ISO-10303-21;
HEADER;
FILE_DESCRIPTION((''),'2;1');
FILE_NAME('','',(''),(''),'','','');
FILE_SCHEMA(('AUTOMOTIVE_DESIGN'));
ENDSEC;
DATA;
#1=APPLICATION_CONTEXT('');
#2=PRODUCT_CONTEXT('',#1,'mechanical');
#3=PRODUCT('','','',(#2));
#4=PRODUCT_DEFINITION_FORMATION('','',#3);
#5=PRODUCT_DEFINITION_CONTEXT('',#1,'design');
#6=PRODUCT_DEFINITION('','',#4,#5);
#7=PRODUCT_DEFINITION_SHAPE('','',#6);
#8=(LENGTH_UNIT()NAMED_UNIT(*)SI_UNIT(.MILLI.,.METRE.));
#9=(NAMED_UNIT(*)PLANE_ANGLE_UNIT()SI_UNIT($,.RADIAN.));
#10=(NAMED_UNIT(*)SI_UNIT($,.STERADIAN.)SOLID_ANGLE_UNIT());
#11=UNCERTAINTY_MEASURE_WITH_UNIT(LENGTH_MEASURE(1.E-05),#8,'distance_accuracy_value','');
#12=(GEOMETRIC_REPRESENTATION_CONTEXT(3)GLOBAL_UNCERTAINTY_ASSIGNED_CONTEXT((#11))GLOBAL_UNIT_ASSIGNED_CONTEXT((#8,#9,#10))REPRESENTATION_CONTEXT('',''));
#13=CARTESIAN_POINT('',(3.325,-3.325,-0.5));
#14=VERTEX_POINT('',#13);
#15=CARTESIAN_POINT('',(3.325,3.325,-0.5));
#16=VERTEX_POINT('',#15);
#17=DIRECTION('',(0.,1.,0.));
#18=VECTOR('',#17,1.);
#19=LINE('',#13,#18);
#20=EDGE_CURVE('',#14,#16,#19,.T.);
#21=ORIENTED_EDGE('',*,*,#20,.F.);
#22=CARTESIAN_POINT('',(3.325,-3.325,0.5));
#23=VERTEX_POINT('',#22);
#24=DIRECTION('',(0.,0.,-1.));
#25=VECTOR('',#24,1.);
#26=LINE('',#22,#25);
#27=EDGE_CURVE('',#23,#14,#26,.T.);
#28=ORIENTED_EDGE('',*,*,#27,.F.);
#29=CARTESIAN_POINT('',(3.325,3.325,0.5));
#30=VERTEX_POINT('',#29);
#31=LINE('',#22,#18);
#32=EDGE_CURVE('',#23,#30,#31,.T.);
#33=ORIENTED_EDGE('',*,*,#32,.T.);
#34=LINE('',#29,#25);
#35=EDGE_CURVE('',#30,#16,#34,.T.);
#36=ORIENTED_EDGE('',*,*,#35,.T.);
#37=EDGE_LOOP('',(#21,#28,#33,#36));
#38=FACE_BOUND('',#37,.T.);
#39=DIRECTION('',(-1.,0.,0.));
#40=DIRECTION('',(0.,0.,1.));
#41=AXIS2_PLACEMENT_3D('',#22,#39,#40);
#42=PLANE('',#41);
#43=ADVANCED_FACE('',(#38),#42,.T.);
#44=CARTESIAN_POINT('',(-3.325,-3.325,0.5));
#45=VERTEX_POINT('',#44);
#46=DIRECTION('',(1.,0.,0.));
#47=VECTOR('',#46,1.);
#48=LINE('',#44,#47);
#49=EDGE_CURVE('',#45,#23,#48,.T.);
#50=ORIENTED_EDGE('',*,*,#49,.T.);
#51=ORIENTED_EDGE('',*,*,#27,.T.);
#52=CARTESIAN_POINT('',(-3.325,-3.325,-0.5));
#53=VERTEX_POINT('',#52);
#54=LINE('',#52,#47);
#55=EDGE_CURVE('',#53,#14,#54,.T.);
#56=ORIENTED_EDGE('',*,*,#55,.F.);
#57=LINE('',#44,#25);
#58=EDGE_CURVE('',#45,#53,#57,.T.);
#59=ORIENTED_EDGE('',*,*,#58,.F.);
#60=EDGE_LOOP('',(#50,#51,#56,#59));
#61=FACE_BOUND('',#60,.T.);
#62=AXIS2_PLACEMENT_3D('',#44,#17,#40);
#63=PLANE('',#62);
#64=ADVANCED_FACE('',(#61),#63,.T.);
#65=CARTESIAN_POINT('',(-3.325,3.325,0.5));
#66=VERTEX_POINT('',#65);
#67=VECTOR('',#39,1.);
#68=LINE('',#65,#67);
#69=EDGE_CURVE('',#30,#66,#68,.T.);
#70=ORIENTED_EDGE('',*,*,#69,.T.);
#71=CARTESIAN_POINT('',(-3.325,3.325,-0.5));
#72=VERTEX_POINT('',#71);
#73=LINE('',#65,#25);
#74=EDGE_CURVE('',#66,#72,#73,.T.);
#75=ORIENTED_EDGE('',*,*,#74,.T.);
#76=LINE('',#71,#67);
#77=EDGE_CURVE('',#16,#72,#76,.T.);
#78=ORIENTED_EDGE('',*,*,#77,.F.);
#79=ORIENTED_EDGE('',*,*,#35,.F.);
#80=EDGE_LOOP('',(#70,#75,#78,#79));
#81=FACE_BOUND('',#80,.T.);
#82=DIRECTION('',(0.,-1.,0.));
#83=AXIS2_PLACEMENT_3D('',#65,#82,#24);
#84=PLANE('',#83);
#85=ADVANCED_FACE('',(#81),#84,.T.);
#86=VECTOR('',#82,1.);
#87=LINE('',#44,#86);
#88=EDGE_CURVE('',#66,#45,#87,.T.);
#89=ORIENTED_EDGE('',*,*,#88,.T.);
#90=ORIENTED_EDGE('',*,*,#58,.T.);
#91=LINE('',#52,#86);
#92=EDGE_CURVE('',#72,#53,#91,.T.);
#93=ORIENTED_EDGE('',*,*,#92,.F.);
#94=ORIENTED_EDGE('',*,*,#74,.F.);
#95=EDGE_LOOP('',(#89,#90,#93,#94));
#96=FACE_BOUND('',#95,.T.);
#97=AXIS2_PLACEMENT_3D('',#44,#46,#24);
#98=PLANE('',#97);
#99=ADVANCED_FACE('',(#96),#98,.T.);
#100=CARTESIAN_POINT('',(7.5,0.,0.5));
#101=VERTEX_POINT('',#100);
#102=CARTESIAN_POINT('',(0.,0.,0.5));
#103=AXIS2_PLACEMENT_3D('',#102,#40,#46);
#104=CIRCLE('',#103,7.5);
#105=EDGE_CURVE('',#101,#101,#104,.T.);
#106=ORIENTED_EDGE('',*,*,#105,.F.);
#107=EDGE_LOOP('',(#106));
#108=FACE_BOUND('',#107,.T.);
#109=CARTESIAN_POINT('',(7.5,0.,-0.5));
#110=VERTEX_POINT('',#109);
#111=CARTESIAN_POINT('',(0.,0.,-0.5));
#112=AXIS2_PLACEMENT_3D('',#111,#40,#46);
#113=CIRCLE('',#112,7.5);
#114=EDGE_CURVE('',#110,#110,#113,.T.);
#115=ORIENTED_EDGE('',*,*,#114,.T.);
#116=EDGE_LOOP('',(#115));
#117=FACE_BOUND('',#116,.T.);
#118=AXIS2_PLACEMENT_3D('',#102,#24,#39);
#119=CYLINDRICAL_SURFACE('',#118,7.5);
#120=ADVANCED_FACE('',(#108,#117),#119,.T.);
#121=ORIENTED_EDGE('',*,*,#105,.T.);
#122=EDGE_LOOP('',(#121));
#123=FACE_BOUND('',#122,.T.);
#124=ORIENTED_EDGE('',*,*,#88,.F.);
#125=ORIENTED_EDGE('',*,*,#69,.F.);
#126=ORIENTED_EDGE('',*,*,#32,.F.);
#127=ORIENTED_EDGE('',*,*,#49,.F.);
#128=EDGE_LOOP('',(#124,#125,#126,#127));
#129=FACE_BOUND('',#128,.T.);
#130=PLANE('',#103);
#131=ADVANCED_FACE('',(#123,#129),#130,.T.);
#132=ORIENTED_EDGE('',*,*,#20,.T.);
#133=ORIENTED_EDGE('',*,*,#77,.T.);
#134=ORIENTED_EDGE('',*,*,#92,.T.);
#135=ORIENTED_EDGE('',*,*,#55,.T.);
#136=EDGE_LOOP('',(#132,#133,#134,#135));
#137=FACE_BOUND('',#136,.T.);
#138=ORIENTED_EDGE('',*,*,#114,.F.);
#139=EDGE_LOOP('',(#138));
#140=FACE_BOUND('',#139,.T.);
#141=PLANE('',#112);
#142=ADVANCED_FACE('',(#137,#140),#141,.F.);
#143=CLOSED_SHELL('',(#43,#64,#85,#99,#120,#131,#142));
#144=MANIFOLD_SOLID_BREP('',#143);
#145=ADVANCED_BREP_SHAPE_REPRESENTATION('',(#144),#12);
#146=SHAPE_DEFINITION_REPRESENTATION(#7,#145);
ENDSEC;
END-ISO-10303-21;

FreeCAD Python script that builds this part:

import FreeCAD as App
import Part
import Sketcher
from FreeCAD import Vector

doc = App.newDocument("Part")
body = doc.addObject("PartDesign::Body", "Body")

# Sketch on XY plane
sketch1 = body.newObject("Sketcher::SketchObject", "Sketch")
sketch1.AttachmentSupport = (doc.getObject("XY_Plane"), [""])
sketch1.MapMode = "FlatFace"
sketch1.addGeometry([
    Part.Circle(Vector(0, 0, 0), Vector(0, 0, 1), 7.5),  # 0
    Part.LineSegment(Vector(3.325, -3.325, 0), Vector(-3.325, -3.325, 0)),  # 1
    Part.LineSegment(Vector(-3.325, -3.325, 0), Vector(-3.325, 3.325, 0)),  # 2
    Part.LineSegment(Vector(-3.325, 3.325, 0), Vector(3.325, 3.325, 0)),  # 3
    Part.LineSegment(Vector(3.325, 3.325, 0), Vector(3.325, -3.325, 0)),  # 4
], False)
sketch1.addConstraint([
    Sketcher.Constraint("Coincident", 1, 2, 2, 1),
    Sketcher.Constraint("Coincident", 2, 2, 3, 1),
    Sketcher.Constraint("Coincident", 3, 2, 4, 1),
    Sketcher.Constraint("Coincident", 4, 2, 1, 1),
    Sketcher.Constraint("Horizontal", 1),
    Sketcher.Constraint("Vertical", 2),
    Sketcher.Constraint("Horizontal", 3),
    Sketcher.Constraint("Vertical", 4),
    Sketcher.Constraint("Coincident", 0, 3, -1, 1),
    Sketcher.Constraint("Symmetric", 1, 2, 3, 2, -1, 1),
    Sketcher.Constraint("Equal", 3, 2),
    Sketcher.Constraint("Diameter", 0, 15.0),
    Sketcher.Constraint("DistanceX", 1, 2, 1, 1, 6.65),
])
pad1 = body.newObject("PartDesign::Pad", "Pad")
pad1.Profile = sketch1
pad1.Length = 1
pad1.Midplane = True

doc.recompute()
